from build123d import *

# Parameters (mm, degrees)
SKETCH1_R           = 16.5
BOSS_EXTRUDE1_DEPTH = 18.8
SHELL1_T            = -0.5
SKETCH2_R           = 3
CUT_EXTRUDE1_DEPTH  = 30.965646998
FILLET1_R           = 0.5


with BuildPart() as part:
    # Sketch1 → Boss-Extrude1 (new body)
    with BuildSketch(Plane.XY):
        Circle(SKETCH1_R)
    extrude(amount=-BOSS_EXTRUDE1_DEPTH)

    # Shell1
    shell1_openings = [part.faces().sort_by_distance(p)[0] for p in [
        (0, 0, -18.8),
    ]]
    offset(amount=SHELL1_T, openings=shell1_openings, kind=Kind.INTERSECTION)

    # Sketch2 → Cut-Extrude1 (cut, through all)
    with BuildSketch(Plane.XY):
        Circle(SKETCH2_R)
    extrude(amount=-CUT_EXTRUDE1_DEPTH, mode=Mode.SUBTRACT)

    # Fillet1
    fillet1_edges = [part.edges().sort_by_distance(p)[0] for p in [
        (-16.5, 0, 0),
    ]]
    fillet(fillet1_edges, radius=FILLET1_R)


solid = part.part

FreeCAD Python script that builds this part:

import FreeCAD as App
import Part
import Sketcher


def edges_at(feature, points):
    """Names of the edges that pass closest to the given points."""
    edges = feature.Shape.Edges
    near = lambda p: min(range(len(edges)), key=lambda i: edges[i].distToShape(Part.Vertex(*p))[0])
    return sorted({f"Edge{near(p) + 1}" for p in points})


def faces_at(feature, points):
    """Names of the faces that lie closest to the given points."""
    faces = feature.Shape.Faces
    near = lambda p: min(range(len(faces)), key=lambda i: faces[i].distToShape(Part.Vertex(*p))[0])
    return sorted({f"Face{near(p) + 1}" for p in points})

doc = App.newDocument("Part")
body = doc.addObject("PartDesign::Body", "Body")

# Sketch on XY plane
sketch1 = body.newObject("Sketcher::SketchObject", "Sketch")
sketch1.AttachmentSupport = (doc.getObject("XY_Plane"), [""])
sketch1.MapMode = "FlatFace"
sketch1.addGeometry(Part.Circle(App.Vector(0, 0, 0), App.Vector(0, 0, 1), 16.5), False)
sketch1.addConstraint([
    Sketcher.Constraint("Coincident", 0, 3, -1, 1),
    Sketcher.Constraint("Diameter", 0, 33.0),
])
pad1 = body.newObject("PartDesign::Pad", "Pad")
pad1.Profile = sketch1
pad1.Length = 18.8
pad1.Reversed = True
doc.recompute()

thickness = body.newObject("PartDesign::Thickness", "Thickness")
thickness.Base = (pad1, faces_at(pad1, [(0, 0, -18.8)]))
thickness.Value = 0.5
thickness.Reversed = True
thickness.Join = "Intersection"

# Sketch on XY plane
sketch2 = body.newObject("Sketcher::SketchObject", "Sketch001")
sketch2.AttachmentSupport = (doc.getObject("XY_Plane"), [""])
sketch2.MapMode = "FlatFace"
sketch2.addGeometry(Part.Circle(App.Vector(0, 0, 0), App.Vector(0, 0, 1), 3), False)
sketch2.addConstraint([
    Sketcher.Constraint("Coincident", 0, 3, -1, 1),
    Sketcher.Constraint("Diameter", 0, 6.0),
])
pocket1 = body.newObject("PartDesign::Pocket", "Pocket")
pocket1.Profile = sketch2
pocket1.Type = "ThroughAll"
doc.recompute()

fillet = body.newObject("PartDesign::Fillet", "Fillet")
fillet.Base = (pocket1, edges_at(pocket1, [(-16.5, 0, 0)]))
fillet.Radius = 0.5

doc.recompute()
